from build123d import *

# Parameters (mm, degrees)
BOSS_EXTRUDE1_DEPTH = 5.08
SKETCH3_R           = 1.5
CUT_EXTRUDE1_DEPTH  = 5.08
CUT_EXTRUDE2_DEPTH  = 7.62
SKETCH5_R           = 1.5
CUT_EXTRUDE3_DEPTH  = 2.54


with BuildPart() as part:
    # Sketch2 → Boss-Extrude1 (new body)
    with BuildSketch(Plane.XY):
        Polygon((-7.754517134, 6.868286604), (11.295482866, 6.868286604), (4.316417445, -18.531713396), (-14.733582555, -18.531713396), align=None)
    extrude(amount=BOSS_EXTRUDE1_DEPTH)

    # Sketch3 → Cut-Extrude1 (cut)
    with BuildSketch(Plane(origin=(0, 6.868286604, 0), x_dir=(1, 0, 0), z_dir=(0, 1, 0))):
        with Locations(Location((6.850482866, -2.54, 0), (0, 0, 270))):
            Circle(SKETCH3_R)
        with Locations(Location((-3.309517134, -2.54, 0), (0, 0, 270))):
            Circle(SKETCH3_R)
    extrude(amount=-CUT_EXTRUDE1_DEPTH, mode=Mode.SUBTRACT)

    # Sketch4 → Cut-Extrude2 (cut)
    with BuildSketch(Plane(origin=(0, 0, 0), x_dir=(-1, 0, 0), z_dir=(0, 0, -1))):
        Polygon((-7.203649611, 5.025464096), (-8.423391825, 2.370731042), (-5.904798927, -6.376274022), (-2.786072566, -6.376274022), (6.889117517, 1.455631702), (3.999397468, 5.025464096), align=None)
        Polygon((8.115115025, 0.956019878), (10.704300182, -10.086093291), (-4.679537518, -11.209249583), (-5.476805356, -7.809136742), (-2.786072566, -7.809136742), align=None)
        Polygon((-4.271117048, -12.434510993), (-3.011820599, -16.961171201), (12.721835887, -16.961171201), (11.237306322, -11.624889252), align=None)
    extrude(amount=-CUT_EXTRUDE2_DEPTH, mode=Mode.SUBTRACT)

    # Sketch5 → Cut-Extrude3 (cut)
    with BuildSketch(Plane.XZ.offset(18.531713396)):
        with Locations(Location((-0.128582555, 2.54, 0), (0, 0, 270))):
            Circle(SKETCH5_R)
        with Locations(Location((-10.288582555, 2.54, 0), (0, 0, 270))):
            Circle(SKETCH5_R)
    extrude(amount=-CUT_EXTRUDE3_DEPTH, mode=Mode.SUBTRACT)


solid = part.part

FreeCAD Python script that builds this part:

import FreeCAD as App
import Part
import Sketcher
Q = App.Units.Quantity


def add_polygon(sketch, points):
    """Adds a closed chain of lines whose ends are joined by coincident constraints."""
    first, n = sketch.GeometryCount, len(points)
    for a, b in zip(points, points[1:] + points[:1]):
        sketch.addGeometry(Part.LineSegment(App.Vector(*a, 0), App.Vector(*b, 0)), False)
    for i in range(n):
        sketch.addConstraint(Sketcher.Constraint("Coincident", first + i, 2, first + (i + 1) % n, 1))

doc = App.newDocument("Part")
body = doc.addObject("PartDesign::Body", "Body")

# Sketch on XY plane
sketch1 = doc.addObject("Sketcher::SketchObject", "Sketch")
body.addObject(sketch1)
sketch1.AttachmentSupport = (doc.XY_Plane, [""])
sketch1.MapMode = "FlatFace"
add_polygon(sketch1, [(11.295483, 6.868287), (-7.754517, 6.868287), (-14.733583, -18.531713), (4.316417, -18.531713)])  # lines 0-3
sketch1.addConstraint([
    Sketcher.Constraint("Horizontal", 0),
    Sketcher.Constraint("Horizontal", 2),
    Sketcher.Constraint("Parallel", 1, 3),
    Sketcher.Constraint("DistanceY", 1, 2, 0, 2, Q("1 in")),
    Sketcher.Constraint("DistanceX", 0, 2, 0, 1, Q("0.75 in")),
    Sketcher.Constraint("Distance", 1, 26.341362),
    Sketcher.Constraint("DistanceX", 0, 2, -1, 1, 7.754517),
    Sketcher.Constraint("DistanceY", -1, 1, 0, 2, 6.868287),
])
pad1 = doc.addObject("PartDesign::Pad", "Pad")
body.addObject(pad1)
pad1.Profile = sketch1
pad1.Length = Q("0.2 in")

# Sketch on XZ plane
sketch2 = doc.addObject("Sketcher::SketchObject", "Sketch001")
body.addObject(sketch2)
sketch2.AttachmentSupport = (doc.XZ_Plane, [""])
sketch2.MapMode = "FlatFace"
sketch2.AttachmentOffset = App.Placement(App.Vector(0, 0, -6.868287), App.Rotation())
sketch2.addGeometry([
    Part.Circle(App.Vector(6.850483, 2.54, 0), App.Vector(0, 0, 1), 1.5),
    Part.Circle(App.Vector(-3.309517, 2.54, 0), App.Vector(0, 0, 1), 1.5),
], False)
sketch2.addConstraint([
    Sketcher.Constraint("Equal", 0, 1),
    Sketcher.Constraint("Horizontal", 0, 3, 1, 3),
    Sketcher.Constraint("DistanceY", -1, 1, 0, 3, Q("0.1 in")),
    Sketcher.Constraint("DistanceX", 1, 3, 0, 3, Q("0.4 in")),
    Sketcher.Constraint("Diameter", 0, 3.0),
    Sketcher.Constraint("DistanceX", -1, 1, 0, 3, 6.850483),
])
pocket1 = doc.addObject("PartDesign::Pocket", "Pocket")
body.addObject(pocket1)
pocket1.Profile = sketch2
pocket1.Length = Q("0.2 in")
pocket1.Reversed = True

# Sketch on XY plane
sketch3 = doc.addObject("Sketcher::SketchObject", "Sketch002")
body.addObject(sketch3)
sketch3.AttachmentSupport = (doc.XY_Plane, [""])
sketch3.MapMode = "FlatFace"
add_polygon(sketch3, [(7.20365, 5.025464), (8.423392, 2.370731), (5.904799, -6.376274), (2.786073, -6.376274), (-6.889118, 1.455632), (-3.999397, 5.025464)])  # lines 0-5
add_polygon(sketch3, [(-10.7043, -10.086093), (-8.115115, 0.95602), (2.786073, -7.809137), (5.476805, -7.809137), (4.679538, -11.20925)])  # lines 6-10
add_polygon(sketch3, [(4.271117, -12.434511), (3.011821, -16.961171), (-12.721836, -16.961171), (-11.237306, -11.624889)])  # lines 11-14
sketch3.addConstraint([
    Sketcher.Constraint("Horizontal", 2),
    Sketcher.Constraint("Horizontal", 5),
    Sketcher.Constraint("Horizontal", 8),
    Sketcher.Constraint("Horizontal", 12),
    Sketcher.Constraint("Perpendicular", 3, 4),
    Sketcher.Constraint("Parallel", 6, 9),
    Sketcher.Constraint("Parallel", 11, 13),
    Sketcher.Constraint("Vertical", 2, 2, 7, 2),
    Sketcher.Constraint("DistanceX", -1, 1, 1, 2, 5.904799),
    Sketcher.Constraint("DistanceX", 10, 2, -1, 1, 10.7043),
    Sketcher.Constraint("DistanceY", 3, 2, 0, 2, 0.915099),
    Sketcher.Constraint("DistanceY", 7, 2, 5, 2, 12.834601),
    Sketcher.Constraint("Distance", 4, 4.592841),
    Sketcher.Constraint("Distance", 6, 11.341611),
    Sketcher.Constraint("Distance", 7, 13.98799),
    Sketcher.Constraint("Distance", 11, 4.698562),
    Sketcher.Constraint("Distance", 13, 5.538929),
    Sketcher.Constraint("DistanceX", 2, 2, 2, 1, 3.118726),
    Sketcher.Constraint("DistanceX", 5, 1, 5, 2, 11.203047),
    Sketcher.Constraint("DistanceX", 8, 1, 8, 2, 2.690733),
    Sketcher.Constraint("DistanceX", 12, 2, 12, 1, 15.733656),
    Sketcher.Constraint("DistanceX", -1, 1, 0, 2, 8.423392),
    Sketcher.Constraint("DistanceY", -1, 1, 0, 2, 2.370731),
    Sketcher.Constraint("DistanceX", -1, 1, 5, 2, 7.20365),
    Sketcher.Constraint("DistanceY", -1, 1, 6, 2, 0.95602),
    Sketcher.Constraint("DistanceY", 9, 2, -1, 1, 11.20925),
    Sketcher.Constraint("DistanceX", -1, 1, 11, 2, 3.011821),
    Sketcher.Constraint("DistanceY", 11, 2, -1, 1, 16.961171),
    Sketcher.Constraint("DistanceY", 13, 2, -1, 1, 11.624889),
    Sketcher.Constraint("DistanceX", 3, 2, 2, 2, 9.67519),
])
pocket2 = doc.addObject("PartDesign::Pocket", "Pocket001")
body.addObject(pocket2)
pocket2.Profile = sketch3
pocket2.Length = Q("0.3 in")
pocket2.Reversed = True

# Sketch on XZ plane
sketch4 = doc.addObject("Sketcher::SketchObject", "Sketch003")
body.addObject(sketch4)
sketch4.AttachmentSupport = (doc.XZ_Plane, [""])
sketch4.MapMode = "FlatFace"
sketch4.AttachmentOffset = App.Placement(App.Vector(0, 0, 18.531713), App.Rotation())
sketch4.addGeometry([
    Part.Circle(App.Vector(-0.128583, 2.54, 0), App.Vector(0, 0, 1), 1.5),
    Part.Circle(App.Vector(-10.288583, 2.54, 0), App.Vector(0, 0, 1), 1.5),
], False)
sketch4.addConstraint([
    Sketcher.Constraint("Equal", 0, 1),
    Sketcher.Constraint("Horizontal", 0, 3, 1, 3),
    Sketcher.Constraint("DistanceY", -1, 1, 0, 3, Q("0.1 in")),
    Sketcher.Constraint("DistanceX", 1, 3, 0, 3, Q("0.4 in")),
    Sketcher.Constraint("Diameter", 0, 3.0),
    Sketcher.Constraint("DistanceX", 0, 3, -1, 1, 0.128583),
])
pocket3 = doc.addObject("PartDesign::Pocket", "Pocket002")
body.addObject(pocket3)
pocket3.Profile = sketch4
pocket3.Length = Q("0.1 in")

doc.recompute()
